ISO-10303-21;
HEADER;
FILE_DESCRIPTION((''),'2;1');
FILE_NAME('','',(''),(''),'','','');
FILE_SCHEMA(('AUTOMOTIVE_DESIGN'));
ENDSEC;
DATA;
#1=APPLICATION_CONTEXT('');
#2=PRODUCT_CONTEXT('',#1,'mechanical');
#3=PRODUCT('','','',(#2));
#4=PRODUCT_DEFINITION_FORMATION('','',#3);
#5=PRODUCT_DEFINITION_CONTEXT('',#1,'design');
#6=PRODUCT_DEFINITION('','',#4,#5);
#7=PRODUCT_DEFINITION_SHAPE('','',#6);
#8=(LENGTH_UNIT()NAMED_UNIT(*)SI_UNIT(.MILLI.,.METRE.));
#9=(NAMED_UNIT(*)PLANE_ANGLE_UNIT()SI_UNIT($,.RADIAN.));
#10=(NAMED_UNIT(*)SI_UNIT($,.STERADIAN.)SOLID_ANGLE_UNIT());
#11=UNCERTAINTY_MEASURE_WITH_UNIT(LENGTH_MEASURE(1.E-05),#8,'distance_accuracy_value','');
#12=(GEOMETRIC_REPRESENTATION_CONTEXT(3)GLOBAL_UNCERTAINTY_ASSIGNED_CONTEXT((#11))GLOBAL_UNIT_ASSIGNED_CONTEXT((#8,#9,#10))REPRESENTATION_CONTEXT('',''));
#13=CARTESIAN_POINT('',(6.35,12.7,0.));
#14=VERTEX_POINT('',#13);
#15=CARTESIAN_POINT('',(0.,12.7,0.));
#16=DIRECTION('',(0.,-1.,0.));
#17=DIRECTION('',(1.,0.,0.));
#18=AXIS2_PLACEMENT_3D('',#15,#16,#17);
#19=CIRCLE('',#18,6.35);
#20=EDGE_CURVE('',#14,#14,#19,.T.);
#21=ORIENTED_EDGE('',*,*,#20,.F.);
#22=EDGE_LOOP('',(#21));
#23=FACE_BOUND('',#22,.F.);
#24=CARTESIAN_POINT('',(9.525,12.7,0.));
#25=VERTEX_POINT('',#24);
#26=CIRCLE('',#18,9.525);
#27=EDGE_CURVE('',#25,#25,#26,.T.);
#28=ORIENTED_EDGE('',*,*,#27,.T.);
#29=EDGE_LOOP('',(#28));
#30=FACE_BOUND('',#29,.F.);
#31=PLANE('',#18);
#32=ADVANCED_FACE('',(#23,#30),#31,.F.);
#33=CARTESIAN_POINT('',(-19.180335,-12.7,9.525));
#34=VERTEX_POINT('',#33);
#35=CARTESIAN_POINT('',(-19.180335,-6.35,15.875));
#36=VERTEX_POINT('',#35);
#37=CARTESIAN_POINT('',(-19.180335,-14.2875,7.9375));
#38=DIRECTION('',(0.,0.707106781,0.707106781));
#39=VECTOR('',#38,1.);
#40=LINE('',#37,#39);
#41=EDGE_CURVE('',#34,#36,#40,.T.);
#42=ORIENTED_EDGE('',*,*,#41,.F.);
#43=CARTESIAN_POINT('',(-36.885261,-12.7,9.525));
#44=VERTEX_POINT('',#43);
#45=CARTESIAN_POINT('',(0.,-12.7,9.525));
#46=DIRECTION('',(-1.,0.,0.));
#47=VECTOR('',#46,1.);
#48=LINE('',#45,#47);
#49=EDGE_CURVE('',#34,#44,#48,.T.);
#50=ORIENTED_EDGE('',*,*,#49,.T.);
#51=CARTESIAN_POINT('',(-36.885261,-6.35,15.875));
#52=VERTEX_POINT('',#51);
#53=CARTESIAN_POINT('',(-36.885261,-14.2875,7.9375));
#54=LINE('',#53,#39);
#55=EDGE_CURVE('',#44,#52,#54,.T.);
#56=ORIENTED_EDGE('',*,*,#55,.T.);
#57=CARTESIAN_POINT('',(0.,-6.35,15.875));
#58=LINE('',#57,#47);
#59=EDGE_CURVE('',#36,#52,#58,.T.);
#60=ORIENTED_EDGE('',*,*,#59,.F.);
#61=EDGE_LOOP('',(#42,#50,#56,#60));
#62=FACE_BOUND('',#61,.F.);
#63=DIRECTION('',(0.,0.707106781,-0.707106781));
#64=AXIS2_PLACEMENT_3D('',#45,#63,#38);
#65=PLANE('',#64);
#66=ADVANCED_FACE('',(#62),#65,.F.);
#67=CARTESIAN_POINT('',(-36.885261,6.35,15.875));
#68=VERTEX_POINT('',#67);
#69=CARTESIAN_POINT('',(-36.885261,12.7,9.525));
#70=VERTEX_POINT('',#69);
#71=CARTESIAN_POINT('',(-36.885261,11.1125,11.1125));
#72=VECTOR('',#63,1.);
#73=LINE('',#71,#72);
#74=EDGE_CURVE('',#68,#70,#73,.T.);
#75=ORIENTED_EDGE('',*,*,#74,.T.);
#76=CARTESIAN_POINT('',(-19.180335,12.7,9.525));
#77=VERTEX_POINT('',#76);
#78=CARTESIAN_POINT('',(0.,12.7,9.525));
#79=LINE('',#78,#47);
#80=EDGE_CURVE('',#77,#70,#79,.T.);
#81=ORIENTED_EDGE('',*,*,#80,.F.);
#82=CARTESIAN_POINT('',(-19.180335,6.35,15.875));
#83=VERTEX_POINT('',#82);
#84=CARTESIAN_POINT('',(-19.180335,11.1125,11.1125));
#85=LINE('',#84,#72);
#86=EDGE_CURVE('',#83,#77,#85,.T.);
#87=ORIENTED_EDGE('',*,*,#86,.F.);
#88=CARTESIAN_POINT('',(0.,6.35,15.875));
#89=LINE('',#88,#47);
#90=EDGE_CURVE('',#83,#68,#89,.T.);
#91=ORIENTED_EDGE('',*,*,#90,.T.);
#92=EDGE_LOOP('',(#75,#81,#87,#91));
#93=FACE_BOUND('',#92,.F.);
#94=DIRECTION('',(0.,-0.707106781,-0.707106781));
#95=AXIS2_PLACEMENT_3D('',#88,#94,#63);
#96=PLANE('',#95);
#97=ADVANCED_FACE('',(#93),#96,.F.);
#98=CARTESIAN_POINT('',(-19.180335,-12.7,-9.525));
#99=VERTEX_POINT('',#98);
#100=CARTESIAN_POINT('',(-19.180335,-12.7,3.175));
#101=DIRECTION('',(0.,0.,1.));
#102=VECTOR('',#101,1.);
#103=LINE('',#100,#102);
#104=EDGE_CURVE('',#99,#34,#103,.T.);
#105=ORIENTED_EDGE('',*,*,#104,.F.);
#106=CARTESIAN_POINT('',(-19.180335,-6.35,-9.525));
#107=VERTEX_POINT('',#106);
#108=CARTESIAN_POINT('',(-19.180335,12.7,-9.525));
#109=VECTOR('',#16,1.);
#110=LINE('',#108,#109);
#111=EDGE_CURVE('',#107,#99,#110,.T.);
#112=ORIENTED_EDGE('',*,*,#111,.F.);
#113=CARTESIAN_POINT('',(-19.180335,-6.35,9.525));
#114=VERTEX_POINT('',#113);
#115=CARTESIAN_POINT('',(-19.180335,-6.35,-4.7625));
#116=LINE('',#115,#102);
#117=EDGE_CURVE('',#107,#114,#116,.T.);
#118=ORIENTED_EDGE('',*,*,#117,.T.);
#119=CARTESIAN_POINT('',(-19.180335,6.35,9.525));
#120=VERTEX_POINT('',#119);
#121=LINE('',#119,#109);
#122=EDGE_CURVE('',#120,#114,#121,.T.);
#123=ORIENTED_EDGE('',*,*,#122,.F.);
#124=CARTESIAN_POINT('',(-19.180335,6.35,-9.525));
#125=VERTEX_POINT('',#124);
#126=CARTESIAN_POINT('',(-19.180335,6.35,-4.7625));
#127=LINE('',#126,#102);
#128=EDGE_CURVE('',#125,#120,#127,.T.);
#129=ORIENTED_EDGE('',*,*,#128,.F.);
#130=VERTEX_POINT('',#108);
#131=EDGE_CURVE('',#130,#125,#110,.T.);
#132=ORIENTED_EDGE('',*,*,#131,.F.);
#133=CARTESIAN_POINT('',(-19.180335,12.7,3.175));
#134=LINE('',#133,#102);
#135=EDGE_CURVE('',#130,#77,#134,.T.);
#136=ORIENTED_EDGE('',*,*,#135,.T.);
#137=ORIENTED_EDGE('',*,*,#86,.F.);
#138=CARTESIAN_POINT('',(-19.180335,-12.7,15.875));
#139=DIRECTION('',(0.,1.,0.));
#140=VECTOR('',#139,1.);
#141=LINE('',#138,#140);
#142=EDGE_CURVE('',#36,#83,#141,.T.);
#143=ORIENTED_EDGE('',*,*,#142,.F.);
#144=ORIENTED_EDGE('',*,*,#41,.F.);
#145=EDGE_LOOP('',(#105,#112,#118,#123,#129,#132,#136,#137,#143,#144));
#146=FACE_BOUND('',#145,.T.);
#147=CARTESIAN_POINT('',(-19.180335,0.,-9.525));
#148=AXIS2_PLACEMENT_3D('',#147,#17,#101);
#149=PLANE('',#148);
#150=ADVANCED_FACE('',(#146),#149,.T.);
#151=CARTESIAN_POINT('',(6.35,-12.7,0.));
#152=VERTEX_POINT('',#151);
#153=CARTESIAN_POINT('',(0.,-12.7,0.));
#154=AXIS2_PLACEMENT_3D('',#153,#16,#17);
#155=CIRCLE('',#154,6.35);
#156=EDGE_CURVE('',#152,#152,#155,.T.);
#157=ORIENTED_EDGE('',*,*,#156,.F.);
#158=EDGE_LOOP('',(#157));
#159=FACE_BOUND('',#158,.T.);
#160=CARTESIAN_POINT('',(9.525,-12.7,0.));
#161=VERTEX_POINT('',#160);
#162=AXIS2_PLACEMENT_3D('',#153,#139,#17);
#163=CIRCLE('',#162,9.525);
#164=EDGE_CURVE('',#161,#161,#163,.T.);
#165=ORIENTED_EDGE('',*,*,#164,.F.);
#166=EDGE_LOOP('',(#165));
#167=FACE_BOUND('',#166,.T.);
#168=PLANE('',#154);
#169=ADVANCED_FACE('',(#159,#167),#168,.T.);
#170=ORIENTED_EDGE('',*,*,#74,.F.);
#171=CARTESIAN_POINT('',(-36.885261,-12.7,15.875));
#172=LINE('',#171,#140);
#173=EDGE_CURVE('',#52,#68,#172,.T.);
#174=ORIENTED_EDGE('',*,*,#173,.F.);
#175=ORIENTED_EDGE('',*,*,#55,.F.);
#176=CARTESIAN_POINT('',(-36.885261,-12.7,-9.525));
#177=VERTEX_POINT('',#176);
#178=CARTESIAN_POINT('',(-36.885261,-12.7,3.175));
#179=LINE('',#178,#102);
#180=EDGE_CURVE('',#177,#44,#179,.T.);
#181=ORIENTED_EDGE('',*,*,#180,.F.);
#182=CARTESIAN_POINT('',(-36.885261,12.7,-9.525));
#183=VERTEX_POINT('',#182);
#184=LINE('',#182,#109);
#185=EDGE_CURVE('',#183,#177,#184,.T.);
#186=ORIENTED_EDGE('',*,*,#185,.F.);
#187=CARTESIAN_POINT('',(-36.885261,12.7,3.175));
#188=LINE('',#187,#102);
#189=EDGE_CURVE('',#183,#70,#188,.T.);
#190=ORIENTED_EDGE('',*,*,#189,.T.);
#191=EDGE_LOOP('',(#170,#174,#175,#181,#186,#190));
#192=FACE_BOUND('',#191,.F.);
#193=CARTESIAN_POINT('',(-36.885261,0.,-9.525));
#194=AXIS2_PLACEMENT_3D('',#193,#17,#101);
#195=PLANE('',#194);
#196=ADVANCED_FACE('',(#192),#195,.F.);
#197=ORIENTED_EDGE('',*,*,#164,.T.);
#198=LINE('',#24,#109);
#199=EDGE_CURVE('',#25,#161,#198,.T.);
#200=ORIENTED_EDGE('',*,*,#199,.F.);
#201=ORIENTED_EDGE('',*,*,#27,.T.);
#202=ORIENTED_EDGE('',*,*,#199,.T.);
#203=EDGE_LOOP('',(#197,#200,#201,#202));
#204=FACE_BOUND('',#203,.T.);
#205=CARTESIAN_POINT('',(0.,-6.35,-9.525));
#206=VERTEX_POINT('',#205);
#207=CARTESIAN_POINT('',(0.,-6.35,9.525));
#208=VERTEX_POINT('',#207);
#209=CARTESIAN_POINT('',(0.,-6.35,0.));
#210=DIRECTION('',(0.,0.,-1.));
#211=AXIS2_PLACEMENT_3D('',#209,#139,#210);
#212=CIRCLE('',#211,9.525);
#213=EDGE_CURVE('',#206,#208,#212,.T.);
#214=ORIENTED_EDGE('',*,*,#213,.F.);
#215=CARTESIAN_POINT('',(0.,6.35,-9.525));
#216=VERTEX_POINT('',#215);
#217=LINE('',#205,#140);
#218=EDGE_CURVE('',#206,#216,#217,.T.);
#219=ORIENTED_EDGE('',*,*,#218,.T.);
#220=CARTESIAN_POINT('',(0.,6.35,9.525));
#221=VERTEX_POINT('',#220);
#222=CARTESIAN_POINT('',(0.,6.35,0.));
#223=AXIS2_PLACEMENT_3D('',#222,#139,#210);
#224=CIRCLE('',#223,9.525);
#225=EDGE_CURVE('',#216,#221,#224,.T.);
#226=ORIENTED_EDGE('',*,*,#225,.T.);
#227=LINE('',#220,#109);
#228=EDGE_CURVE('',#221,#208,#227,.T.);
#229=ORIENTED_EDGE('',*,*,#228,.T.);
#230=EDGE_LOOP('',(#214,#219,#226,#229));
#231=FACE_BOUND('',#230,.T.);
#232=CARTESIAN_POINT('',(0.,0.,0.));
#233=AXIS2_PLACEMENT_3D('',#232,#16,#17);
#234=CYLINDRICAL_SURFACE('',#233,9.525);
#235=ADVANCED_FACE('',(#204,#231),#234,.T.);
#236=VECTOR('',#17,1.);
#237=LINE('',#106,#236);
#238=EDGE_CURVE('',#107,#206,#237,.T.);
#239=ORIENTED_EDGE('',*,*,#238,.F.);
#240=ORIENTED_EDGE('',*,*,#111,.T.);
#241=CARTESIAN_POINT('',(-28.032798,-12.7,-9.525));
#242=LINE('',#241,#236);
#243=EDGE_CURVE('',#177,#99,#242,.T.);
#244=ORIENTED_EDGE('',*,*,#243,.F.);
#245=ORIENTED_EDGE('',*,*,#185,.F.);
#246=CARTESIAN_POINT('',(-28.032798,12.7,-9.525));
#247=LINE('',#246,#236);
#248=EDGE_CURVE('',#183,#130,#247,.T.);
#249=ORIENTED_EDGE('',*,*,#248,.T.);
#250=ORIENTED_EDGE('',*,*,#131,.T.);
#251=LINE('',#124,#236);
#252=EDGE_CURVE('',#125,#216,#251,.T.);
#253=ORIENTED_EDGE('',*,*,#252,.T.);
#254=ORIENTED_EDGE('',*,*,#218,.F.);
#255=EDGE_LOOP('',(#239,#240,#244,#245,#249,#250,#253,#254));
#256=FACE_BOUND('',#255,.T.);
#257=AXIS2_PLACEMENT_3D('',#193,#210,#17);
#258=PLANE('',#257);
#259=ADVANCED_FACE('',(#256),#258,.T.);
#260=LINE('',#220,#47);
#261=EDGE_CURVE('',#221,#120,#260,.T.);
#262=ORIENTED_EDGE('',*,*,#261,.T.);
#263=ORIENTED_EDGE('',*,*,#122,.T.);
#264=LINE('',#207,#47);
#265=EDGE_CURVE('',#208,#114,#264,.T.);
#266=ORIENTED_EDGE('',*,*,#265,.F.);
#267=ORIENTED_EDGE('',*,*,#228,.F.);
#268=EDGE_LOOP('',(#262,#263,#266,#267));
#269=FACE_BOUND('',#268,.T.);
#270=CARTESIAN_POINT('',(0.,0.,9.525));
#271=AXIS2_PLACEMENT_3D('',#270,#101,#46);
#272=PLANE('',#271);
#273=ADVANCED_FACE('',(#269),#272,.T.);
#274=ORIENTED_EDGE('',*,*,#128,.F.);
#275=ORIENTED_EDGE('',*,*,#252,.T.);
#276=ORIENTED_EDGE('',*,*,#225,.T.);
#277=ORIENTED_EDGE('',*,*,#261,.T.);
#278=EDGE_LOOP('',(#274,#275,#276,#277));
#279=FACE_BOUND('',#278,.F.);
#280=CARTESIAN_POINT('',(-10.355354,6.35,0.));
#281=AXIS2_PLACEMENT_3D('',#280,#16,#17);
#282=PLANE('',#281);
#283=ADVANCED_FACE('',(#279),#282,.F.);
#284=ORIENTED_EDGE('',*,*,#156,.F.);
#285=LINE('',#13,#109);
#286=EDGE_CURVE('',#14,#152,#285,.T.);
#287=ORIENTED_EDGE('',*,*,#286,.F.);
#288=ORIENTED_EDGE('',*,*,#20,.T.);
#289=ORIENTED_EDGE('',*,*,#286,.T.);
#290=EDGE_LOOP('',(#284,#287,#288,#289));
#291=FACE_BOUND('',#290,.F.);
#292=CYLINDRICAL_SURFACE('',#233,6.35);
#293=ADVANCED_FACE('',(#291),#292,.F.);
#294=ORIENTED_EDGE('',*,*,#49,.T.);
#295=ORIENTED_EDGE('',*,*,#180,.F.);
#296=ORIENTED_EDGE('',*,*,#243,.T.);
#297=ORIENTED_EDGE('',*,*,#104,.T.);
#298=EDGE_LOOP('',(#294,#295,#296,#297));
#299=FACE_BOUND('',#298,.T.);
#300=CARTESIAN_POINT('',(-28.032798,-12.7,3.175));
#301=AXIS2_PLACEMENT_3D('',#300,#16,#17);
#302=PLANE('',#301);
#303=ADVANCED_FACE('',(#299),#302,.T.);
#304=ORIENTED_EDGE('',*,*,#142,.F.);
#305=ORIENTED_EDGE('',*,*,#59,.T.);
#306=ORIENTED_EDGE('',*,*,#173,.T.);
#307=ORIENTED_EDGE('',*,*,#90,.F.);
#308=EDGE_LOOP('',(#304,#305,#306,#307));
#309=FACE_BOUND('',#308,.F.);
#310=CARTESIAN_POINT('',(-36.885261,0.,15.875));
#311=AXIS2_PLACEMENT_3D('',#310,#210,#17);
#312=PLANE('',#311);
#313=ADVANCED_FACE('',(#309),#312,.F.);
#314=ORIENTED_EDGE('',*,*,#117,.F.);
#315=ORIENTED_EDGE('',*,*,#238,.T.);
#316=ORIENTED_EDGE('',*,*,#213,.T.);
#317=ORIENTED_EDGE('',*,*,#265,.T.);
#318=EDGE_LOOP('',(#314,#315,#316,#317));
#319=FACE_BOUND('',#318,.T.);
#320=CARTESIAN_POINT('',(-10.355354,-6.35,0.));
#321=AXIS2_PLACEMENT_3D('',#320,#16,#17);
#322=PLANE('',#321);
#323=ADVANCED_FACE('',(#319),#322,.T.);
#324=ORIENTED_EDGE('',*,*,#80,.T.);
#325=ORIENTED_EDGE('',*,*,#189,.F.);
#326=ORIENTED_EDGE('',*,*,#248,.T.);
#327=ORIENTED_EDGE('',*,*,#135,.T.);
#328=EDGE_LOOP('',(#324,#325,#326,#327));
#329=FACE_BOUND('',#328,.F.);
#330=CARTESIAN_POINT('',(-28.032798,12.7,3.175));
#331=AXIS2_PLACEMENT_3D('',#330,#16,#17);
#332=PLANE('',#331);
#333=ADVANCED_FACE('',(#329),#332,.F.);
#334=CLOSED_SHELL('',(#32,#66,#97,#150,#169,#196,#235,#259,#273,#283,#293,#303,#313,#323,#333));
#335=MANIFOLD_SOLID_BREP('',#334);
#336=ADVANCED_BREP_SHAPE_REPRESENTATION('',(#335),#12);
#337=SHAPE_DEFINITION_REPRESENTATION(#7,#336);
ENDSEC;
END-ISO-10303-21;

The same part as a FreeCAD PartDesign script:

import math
import FreeCAD as App
import Part
import Sketcher

V = App.Vector
Q = App.Units.Quantity


def add_polygon(sketch, points):
    """Adds a closed chain of lines whose ends are joined by coincident constraints."""
    first, n = sketch.GeometryCount, len(points)
    for a, b in zip(points, points[1:] + points[:1]):
        sketch.addGeometry(Part.LineSegment(App.Vector(*a, 0), App.Vector(*b, 0)), False)
    for i in range(n):
        sketch.addConstraint(Sketcher.Constraint("Coincident", first + i, 2, first + (i + 1) % n, 1))

doc = App.newDocument("Part")
body = doc.addObject("PartDesign::Body", "Body")

# Sketch on XZ plane
sketch1 = doc.addObject("Sketcher::SketchObject", "Sketch")
body.addObject(sketch1)
sketch1.AttachmentSupport = (doc.XZ_Plane, [""])
sketch1.MapMode = "FlatFace"
sketch1.addGeometry(Part.Circle(V(0, 0, 0), V(0, 0, 1), 9.525), False)
sketch1.addConstraint([
    Sketcher.Constraint("Coincident", 0, 3, -1, 1),
    Sketcher.Constraint("Diameter", 0, Q("0.75 in")),
])
pad1 = doc.addObject("PartDesign::Pad", "Pad")
body.addObject(pad1)
pad1.Profile = sketch1
pad1.Length = Q("1 in")
pad1.Midplane = True

# Sketch on XZ plane
sketch2 = doc.addObject("Sketcher::SketchObject", "Sketch001")
body.addObject(sketch2)
sketch2.AttachmentSupport = (doc.XZ_Plane, [""])
sketch2.MapMode = "FlatFace"
sketch2.addGeometry(Part.Circle(V(0, 0, 0), V(0, 0, 1), 6.35), False)
sketch2.addConstraint([
    Sketcher.Constraint("Coincident", 0, 3, -1, 1),
    Sketcher.Constraint("Diameter", 0, Q("0.5 in")),
])
pocket1 = doc.addObject("PartDesign::Pocket", "Pocket")
body.addObject(pocket1)
pocket1.Profile = sketch2
pocket1.Length = Q("1 in")
pocket1.Midplane = True

# Sketch on XZ plane
sketch3 = doc.addObject("Sketcher::SketchObject", "Sketch002")
body.addObject(sketch3)
sketch3.AttachmentSupport = (doc.XZ_Plane, [""])
sketch3.MapMode = "FlatFace"
sketch3.addGeometry([
    Part.ArcOfCircle(Part.Circle(V(0, 0, 0), V(0, 0, 1), 9.525), math.radians(90), math.radians(270)),
    Part.LineSegment(V(0, 9.525, 0), V(-19.180335, 9.525, 0)),
    Part.LineSegment(V(-19.180335, 9.525, 0), V(-19.180335, -9.525, 0)),
    Part.LineSegment(V(-19.180335, -9.525, 0), V(0, -9.525, 0)),
], False)
sketch3.addConstraint([
    Sketcher.Constraint("Tangent", 0, 1, 1, 1),
    Sketcher.Constraint("Coincident", 1, 2, 2, 1),
    Sketcher.Constraint("Coincident", 2, 2, 3, 1),
    Sketcher.Constraint("Tangent", 3, 2, 0, 2),
    Sketcher.Constraint("Horizontal", 1),
    Sketcher.Constraint("Vertical", 2),
    Sketcher.Constraint("Horizontal", 3),
    Sketcher.Constraint("Coincident", 0, 3, -1, 1),
    Sketcher.Constraint("Radius", 0, Q("0.375 in")),
    Sketcher.Constraint("DistanceX", 1, 2, 1, 1, Q("19.180335 mm")),
])
pad2 = doc.addObject("PartDesign::Pad", "Pad001")
body.addObject(pad2)
pad2.Profile = sketch3
pad2.Length = Q("0.5 in")
pad2.Midplane = True

# Sketch on XZ plane
sketch4 = doc.addObject("Sketcher::SketchObject", "Sketch003")
body.addObject(sketch4)
sketch4.AttachmentSupport = (doc.XZ_Plane, [""])
sketch4.MapMode = "FlatFace"
add_polygon(sketch4, [(-36.885261, 15.875), (-36.885261, -9.525), (-19.180335, -9.525), (-19.180335, 15.875)])  # lines 0-3
sketch4.addConstraint([
    Sketcher.Constraint("Vertical", 0),
    Sketcher.Constraint("Horizontal", 1),
    Sketcher.Constraint("Vertical", 2),
    Sketcher.Constraint("Horizontal", 3),
    Sketcher.Constraint("DistanceY", 0, 2, 0, 1, Q("1 in")),
    Sketcher.Constraint("DistanceY", 0, 2, -1, 1, Q("0.375 in")),
    Sketcher.Constraint("DistanceX", 1, 1, 1, 2, Q("17.704927 mm")),
    Sketcher.Constraint("DistanceX", 0, 2, -1, 1, Q("36.885261 mm")),
])
pad3 = doc.addObject("PartDesign::Pad", "Pad002")
body.addObject(pad3)
pad3.Profile = sketch4
pad3.Length = Q("1 in")
pad3.Midplane = True

# Sketch on YZ plane
sketch5 = doc.addObject("Sketcher::SketchObject", "Sketch004")
body.addObject(sketch5)
sketch5.AttachmentSupport = (doc.YZ_Plane, [""])
sketch5.MapMode = "FlatFace"
add_polygon(sketch5, [(12.7, 9.525), (12.7, 15.875), (6.35, 15.875)])  # lines 0-2
add_polygon(sketch5, [(-6.35, 15.875), (-12.7, 15.875), (-12.7, 9.525)])  # lines 3-5
sketch5.addConstraint([
    Sketcher.Constraint("Vertical", 0),
    Sketcher.Constraint("Horizontal", 1),
    Sketcher.Constraint("Horizontal", 3),
    Sketcher.Constraint("Vertical", 4),
    Sketcher.Constraint("Symmetric", 0, 2, 3, 2, -2),
    Sketcher.Constraint("Perpendicular", 2, 5),
    Sketcher.Constraint("Horizontal", 2, 2, 4, 2),
    Sketcher.Constraint("Equal", 1, 3),
    Sketcher.Constraint("DistanceX", 3, 2, 0, 2, Q("1 in")),
    Sketcher.Constraint("DistanceX", 1, 2, 1, 1, Q("0.25 in")),
    Sketcher.Constraint("DistanceY", -1, 1, 0, 2, Q("0.625 in")),
])
pocket2 = doc.addObject("PartDesign::Pocket", "Pocket001")
body.addObject(pocket2)
pocket2.Profile = sketch5
pocket2.Length = Q("1.5 in")

doc.recompute()
